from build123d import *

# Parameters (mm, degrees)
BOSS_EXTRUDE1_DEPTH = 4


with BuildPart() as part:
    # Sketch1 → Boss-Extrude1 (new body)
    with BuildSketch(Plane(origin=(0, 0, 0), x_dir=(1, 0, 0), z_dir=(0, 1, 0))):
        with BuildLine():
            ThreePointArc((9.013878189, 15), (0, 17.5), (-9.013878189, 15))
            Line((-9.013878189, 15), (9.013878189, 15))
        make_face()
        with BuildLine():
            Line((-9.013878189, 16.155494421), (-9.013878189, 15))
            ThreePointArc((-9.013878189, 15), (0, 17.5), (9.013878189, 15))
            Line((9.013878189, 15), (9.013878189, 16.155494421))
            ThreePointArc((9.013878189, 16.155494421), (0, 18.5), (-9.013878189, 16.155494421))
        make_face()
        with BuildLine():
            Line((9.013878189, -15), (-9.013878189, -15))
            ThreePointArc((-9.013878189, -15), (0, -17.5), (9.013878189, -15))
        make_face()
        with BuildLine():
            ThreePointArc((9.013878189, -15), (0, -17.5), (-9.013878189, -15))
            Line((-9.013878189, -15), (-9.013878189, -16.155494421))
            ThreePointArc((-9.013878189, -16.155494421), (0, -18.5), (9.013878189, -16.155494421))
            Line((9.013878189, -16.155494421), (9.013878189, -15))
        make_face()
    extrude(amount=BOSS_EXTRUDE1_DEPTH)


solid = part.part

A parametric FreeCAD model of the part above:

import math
import FreeCAD as App
import Part
import Sketcher

V = App.Vector

doc = App.newDocument("Part")
body = doc.addObject("PartDesign::Body", "Body")
body.AllowCompound = True

sketch1 = body.newObject("Sketcher::SketchObject", "Sketch")
sketch1.AttachmentSupport = (doc.getObject("XZ_Plane"), [""])
sketch1.MapMode = "FlatFace"
sketch1.addGeometry(Part.LineSegment(V(-9, -15, 0), V(9, -15, 0)), False)
sketch1.addGeometry(Part.LineSegment(V(9, -15, 0), V(9, -16.2, 0)), False)
sketch1.addGeometry(Part.ArcOfCircle(Part.Circle(V(0, 0, 0), V(0, 0, 1), 18.5), math.radians(-119), math.radians(-61)), False)
sketch1.addGeometry(Part.LineSegment(V(-9, -16.2, 0), V(-9, -15, 0)), False)
sketch1.addGeometry(Part.LineSegment(V(9, 15, 0), V(-9, 15, 0)), False)
sketch1.addGeometry(Part.LineSegment(V(-9, 15, 0), V(-9, 16.2, 0)), False)
sketch1.addGeometry(Part.ArcOfCircle(Part.Circle(V(0, 0, 0), V(0, 0, 1), 18.5), math.radians(61), math.radians(119)), False)
sketch1.addGeometry(Part.LineSegment(V(9, 16.2, 0), V(9, 15, 0)), False)
sketch1.addConstraint(Sketcher.Constraint("Coincident", 0, 2, 1, 1))
sketch1.addConstraint(Sketcher.Constraint("Coincident", 1, 2, 2, 2))
sketch1.addConstraint(Sketcher.Constraint("Coincident", 2, 1, 3, 1))
sketch1.addConstraint(Sketcher.Constraint("Coincident", 3, 2, 0, 1))
sketch1.addConstraint(Sketcher.Constraint("Coincident", 4, 2, 5, 1))
sketch1.addConstraint(Sketcher.Constraint("Coincident", 5, 2, 6, 2))
sketch1.addConstraint(Sketcher.Constraint("Coincident", 6, 1, 7, 1))
sketch1.addConstraint(Sketcher.Constraint("Coincident", 7, 2, 4, 1))
sketch1.addConstraint(Sketcher.Constraint("Horizontal", 0))
sketch1.addConstraint(Sketcher.Constraint("Vertical", 1))
sketch1.addConstraint(Sketcher.Constraint("Vertical", 3))
sketch1.addConstraint(Sketcher.Constraint("Horizontal", 4))
sketch1.addConstraint(Sketcher.Constraint("Vertical", 5))
sketch1.addConstraint(Sketcher.Constraint("Vertical", 7))
sketch1.addConstraint(Sketcher.Constraint("Coincident", 2, 3, -1, 1))
sketch1.addConstraint(Sketcher.Constraint("Coincident", 6, 3, -1, 1))
sketch1.addConstraint(Sketcher.Constraint("Equal", 2, 6))
sketch1.addConstraint(Sketcher.Constraint("Symmetric", 0, 2, 4, 2, -1, 1))
sketch1.addConstraint(Sketcher.Constraint("Horizontal", 1, 2, 2, 1))
sketch1.addConstraint(Sketcher.Constraint("Horizontal", 5, 2, 6, 1))
sketch1.addConstraint(Sketcher.Constraint("Radius", 2, 18.5))
sketch1.addConstraint(Sketcher.Constraint("DistanceY", 0, 2, -1, 1, 15.0))
sketch1.addConstraint(Sketcher.Constraint("DistanceX", 0, 1, 0, 2, 18.027756))
pad1 = body.newObject("PartDesign::Pad", "Pad")
pad1.Profile = sketch1
pad1.Length = 4
pad1.Reversed = True

doc.recompute()
